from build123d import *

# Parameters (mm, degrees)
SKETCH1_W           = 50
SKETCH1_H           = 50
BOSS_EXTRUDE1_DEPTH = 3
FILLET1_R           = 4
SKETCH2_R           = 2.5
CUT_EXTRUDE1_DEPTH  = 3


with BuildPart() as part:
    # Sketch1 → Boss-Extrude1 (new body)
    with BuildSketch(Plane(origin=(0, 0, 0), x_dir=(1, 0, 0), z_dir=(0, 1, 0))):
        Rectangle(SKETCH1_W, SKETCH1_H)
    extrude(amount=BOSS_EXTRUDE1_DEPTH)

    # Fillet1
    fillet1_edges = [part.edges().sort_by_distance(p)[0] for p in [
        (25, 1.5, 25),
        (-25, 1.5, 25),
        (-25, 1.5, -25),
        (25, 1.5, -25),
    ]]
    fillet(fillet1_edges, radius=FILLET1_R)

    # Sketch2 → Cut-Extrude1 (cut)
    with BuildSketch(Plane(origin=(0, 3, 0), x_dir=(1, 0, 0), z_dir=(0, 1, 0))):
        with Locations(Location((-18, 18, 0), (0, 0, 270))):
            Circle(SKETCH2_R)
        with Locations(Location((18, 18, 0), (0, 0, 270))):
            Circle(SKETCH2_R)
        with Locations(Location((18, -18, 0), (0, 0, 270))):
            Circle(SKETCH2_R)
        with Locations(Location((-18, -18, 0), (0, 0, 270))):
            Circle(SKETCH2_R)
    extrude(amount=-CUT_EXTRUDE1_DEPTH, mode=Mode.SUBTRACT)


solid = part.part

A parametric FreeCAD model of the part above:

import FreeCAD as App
import Part
import Sketcher
from FreeCAD import Vector
Q = App.Units.Quantity


def edges_at(feature, points):
    """Names of the edges that pass closest to the given points."""
    edges = feature.Shape.Edges
    near = lambda p: min(range(len(edges)), key=lambda i: edges[i].distToShape(Part.Vertex(*p))[0])
    return sorted({f"Edge{near(p) + 1}" for p in points})

doc = App.newDocument("Part")
params = doc.addObject("Spreadsheet::Sheet", "Params")
for row, (alias, value) in enumerate([
    ("sketch1_width", "50 mm"),
    ("pad1_length", "3 mm"),
    ("fillet_radius", "4 mm"),
    ("sketch2_diameter", "5 mm"),
    ("pocket1_length", "3 mm"),
], start=1):
    params.set(f"A{row}", alias)
    params.set(f"B{row}", "=" + value)
    params.setAlias(f"B{row}", alias)

body = doc.addObject("PartDesign::Body", "Body")

sketch1 = body.newObject("Sketcher::SketchObject", "Sketch")
sketch1.AttachmentSupport = (doc.getObject("XZ_Plane"), [""])
sketch1.MapMode = "FlatFace"
sketch1.addGeometry([
    Part.LineSegment(Vector(-25, -25, 0), Vector(-25, 25, 0)),
    Part.LineSegment(Vector(-25, 25, 0), Vector(25, 25, 0)),
    Part.LineSegment(Vector(25, 25, 0), Vector(25, -25, 0)),
    Part.LineSegment(Vector(25, -25, 0), Vector(-25, -25, 0)),
], False)
sketch1.addConstraint([
    Sketcher.Constraint("Coincident", 0, 2, 1, 1),
    Sketcher.Constraint("Coincident", 1, 2, 2, 1),
    Sketcher.Constraint("Coincident", 2, 2, 3, 1),
    Sketcher.Constraint("Coincident", 3, 2, 0, 1),
    Sketcher.Constraint("Vertical", 0),
    Sketcher.Constraint("Horizontal", 1),
    Sketcher.Constraint("Vertical", 2),
    Sketcher.Constraint("Horizontal", 3),
    Sketcher.Constraint("Symmetric", 0, 2, 2, 2, -1, 1),
    Sketcher.Constraint("Equal", 3, 0),
    Sketcher.Constraint("DistanceX", 1, 1, 1, 2, Q("50 mm")),
])
sketch1.setExpression("Constraints[10]", "Params.sketch1_width")
pad1 = body.newObject("PartDesign::Pad", "Pad")
pad1.Profile = sketch1
pad1.setExpression("Length", "Params.pad1_length")
pad1.Reversed = True
doc.recompute()

fillet = body.newObject("PartDesign::Fillet", "Fillet")
fillet.Base = (pad1, edges_at(pad1, [
    (25, 1.5, 25),
    (-25, 1.5, 25),
    (-25, 1.5, -25),
    (25, 1.5, -25),
]))
fillet.setExpression("Radius", "Params.fillet_radius")

sketch2 = body.newObject("Sketcher::SketchObject", "Sketch001")
sketch2.AttachmentSupport = (doc.getObject("XZ_Plane"), [""])
sketch2.MapMode = "FlatFace"
sketch2.AttachmentOffset = App.Placement(Vector(0, 0, -3), App.Rotation())
sketch2.addGeometry([
    Part.Circle(Vector(-18, -18, 0), Vector(0, 0, 1), 2.5),
    Part.Circle(Vector(18, -18, 0), Vector(0, 0, 1), 2.5),
    Part.Circle(Vector(18, 18, 0), Vector(0, 0, 1), 2.5),
    Part.Circle(Vector(-18, 18, 0), Vector(0, 0, 1), 2.5),
], False)
sketch2.addConstraint([
    Sketcher.Constraint("Equal", 0, 1),
    Sketcher.Constraint("Equal", 1, 2),
    Sketcher.Constraint("Equal", 2, 3),
    Sketcher.Constraint("Symmetric", 0, 3, 2, 3, -1, 1),
    Sketcher.Constraint("Symmetric", 1, 3, 3, 3, -1, 1),
    Sketcher.Constraint("Symmetric", 0, 3, 1, 3, -2),
    Sketcher.Constraint("Diameter", 0, Q("5 mm")),
    Sketcher.Constraint("DistanceX", 0, 3, -1, 1, Q("18 mm")),
    Sketcher.Constraint("DistanceY", 0, 3, -1, 1, Q("18 mm")),
])
sketch2.setExpression("Constraints[6]", "Params.sketch2_diameter")
pocket1 = body.newObject("PartDesign::Pocket", "Pocket")
pocket1.Profile = sketch2
pocket1.setExpression("Length", "Params.pocket1_length")
pocket1.Reversed = True

doc.recompute()
